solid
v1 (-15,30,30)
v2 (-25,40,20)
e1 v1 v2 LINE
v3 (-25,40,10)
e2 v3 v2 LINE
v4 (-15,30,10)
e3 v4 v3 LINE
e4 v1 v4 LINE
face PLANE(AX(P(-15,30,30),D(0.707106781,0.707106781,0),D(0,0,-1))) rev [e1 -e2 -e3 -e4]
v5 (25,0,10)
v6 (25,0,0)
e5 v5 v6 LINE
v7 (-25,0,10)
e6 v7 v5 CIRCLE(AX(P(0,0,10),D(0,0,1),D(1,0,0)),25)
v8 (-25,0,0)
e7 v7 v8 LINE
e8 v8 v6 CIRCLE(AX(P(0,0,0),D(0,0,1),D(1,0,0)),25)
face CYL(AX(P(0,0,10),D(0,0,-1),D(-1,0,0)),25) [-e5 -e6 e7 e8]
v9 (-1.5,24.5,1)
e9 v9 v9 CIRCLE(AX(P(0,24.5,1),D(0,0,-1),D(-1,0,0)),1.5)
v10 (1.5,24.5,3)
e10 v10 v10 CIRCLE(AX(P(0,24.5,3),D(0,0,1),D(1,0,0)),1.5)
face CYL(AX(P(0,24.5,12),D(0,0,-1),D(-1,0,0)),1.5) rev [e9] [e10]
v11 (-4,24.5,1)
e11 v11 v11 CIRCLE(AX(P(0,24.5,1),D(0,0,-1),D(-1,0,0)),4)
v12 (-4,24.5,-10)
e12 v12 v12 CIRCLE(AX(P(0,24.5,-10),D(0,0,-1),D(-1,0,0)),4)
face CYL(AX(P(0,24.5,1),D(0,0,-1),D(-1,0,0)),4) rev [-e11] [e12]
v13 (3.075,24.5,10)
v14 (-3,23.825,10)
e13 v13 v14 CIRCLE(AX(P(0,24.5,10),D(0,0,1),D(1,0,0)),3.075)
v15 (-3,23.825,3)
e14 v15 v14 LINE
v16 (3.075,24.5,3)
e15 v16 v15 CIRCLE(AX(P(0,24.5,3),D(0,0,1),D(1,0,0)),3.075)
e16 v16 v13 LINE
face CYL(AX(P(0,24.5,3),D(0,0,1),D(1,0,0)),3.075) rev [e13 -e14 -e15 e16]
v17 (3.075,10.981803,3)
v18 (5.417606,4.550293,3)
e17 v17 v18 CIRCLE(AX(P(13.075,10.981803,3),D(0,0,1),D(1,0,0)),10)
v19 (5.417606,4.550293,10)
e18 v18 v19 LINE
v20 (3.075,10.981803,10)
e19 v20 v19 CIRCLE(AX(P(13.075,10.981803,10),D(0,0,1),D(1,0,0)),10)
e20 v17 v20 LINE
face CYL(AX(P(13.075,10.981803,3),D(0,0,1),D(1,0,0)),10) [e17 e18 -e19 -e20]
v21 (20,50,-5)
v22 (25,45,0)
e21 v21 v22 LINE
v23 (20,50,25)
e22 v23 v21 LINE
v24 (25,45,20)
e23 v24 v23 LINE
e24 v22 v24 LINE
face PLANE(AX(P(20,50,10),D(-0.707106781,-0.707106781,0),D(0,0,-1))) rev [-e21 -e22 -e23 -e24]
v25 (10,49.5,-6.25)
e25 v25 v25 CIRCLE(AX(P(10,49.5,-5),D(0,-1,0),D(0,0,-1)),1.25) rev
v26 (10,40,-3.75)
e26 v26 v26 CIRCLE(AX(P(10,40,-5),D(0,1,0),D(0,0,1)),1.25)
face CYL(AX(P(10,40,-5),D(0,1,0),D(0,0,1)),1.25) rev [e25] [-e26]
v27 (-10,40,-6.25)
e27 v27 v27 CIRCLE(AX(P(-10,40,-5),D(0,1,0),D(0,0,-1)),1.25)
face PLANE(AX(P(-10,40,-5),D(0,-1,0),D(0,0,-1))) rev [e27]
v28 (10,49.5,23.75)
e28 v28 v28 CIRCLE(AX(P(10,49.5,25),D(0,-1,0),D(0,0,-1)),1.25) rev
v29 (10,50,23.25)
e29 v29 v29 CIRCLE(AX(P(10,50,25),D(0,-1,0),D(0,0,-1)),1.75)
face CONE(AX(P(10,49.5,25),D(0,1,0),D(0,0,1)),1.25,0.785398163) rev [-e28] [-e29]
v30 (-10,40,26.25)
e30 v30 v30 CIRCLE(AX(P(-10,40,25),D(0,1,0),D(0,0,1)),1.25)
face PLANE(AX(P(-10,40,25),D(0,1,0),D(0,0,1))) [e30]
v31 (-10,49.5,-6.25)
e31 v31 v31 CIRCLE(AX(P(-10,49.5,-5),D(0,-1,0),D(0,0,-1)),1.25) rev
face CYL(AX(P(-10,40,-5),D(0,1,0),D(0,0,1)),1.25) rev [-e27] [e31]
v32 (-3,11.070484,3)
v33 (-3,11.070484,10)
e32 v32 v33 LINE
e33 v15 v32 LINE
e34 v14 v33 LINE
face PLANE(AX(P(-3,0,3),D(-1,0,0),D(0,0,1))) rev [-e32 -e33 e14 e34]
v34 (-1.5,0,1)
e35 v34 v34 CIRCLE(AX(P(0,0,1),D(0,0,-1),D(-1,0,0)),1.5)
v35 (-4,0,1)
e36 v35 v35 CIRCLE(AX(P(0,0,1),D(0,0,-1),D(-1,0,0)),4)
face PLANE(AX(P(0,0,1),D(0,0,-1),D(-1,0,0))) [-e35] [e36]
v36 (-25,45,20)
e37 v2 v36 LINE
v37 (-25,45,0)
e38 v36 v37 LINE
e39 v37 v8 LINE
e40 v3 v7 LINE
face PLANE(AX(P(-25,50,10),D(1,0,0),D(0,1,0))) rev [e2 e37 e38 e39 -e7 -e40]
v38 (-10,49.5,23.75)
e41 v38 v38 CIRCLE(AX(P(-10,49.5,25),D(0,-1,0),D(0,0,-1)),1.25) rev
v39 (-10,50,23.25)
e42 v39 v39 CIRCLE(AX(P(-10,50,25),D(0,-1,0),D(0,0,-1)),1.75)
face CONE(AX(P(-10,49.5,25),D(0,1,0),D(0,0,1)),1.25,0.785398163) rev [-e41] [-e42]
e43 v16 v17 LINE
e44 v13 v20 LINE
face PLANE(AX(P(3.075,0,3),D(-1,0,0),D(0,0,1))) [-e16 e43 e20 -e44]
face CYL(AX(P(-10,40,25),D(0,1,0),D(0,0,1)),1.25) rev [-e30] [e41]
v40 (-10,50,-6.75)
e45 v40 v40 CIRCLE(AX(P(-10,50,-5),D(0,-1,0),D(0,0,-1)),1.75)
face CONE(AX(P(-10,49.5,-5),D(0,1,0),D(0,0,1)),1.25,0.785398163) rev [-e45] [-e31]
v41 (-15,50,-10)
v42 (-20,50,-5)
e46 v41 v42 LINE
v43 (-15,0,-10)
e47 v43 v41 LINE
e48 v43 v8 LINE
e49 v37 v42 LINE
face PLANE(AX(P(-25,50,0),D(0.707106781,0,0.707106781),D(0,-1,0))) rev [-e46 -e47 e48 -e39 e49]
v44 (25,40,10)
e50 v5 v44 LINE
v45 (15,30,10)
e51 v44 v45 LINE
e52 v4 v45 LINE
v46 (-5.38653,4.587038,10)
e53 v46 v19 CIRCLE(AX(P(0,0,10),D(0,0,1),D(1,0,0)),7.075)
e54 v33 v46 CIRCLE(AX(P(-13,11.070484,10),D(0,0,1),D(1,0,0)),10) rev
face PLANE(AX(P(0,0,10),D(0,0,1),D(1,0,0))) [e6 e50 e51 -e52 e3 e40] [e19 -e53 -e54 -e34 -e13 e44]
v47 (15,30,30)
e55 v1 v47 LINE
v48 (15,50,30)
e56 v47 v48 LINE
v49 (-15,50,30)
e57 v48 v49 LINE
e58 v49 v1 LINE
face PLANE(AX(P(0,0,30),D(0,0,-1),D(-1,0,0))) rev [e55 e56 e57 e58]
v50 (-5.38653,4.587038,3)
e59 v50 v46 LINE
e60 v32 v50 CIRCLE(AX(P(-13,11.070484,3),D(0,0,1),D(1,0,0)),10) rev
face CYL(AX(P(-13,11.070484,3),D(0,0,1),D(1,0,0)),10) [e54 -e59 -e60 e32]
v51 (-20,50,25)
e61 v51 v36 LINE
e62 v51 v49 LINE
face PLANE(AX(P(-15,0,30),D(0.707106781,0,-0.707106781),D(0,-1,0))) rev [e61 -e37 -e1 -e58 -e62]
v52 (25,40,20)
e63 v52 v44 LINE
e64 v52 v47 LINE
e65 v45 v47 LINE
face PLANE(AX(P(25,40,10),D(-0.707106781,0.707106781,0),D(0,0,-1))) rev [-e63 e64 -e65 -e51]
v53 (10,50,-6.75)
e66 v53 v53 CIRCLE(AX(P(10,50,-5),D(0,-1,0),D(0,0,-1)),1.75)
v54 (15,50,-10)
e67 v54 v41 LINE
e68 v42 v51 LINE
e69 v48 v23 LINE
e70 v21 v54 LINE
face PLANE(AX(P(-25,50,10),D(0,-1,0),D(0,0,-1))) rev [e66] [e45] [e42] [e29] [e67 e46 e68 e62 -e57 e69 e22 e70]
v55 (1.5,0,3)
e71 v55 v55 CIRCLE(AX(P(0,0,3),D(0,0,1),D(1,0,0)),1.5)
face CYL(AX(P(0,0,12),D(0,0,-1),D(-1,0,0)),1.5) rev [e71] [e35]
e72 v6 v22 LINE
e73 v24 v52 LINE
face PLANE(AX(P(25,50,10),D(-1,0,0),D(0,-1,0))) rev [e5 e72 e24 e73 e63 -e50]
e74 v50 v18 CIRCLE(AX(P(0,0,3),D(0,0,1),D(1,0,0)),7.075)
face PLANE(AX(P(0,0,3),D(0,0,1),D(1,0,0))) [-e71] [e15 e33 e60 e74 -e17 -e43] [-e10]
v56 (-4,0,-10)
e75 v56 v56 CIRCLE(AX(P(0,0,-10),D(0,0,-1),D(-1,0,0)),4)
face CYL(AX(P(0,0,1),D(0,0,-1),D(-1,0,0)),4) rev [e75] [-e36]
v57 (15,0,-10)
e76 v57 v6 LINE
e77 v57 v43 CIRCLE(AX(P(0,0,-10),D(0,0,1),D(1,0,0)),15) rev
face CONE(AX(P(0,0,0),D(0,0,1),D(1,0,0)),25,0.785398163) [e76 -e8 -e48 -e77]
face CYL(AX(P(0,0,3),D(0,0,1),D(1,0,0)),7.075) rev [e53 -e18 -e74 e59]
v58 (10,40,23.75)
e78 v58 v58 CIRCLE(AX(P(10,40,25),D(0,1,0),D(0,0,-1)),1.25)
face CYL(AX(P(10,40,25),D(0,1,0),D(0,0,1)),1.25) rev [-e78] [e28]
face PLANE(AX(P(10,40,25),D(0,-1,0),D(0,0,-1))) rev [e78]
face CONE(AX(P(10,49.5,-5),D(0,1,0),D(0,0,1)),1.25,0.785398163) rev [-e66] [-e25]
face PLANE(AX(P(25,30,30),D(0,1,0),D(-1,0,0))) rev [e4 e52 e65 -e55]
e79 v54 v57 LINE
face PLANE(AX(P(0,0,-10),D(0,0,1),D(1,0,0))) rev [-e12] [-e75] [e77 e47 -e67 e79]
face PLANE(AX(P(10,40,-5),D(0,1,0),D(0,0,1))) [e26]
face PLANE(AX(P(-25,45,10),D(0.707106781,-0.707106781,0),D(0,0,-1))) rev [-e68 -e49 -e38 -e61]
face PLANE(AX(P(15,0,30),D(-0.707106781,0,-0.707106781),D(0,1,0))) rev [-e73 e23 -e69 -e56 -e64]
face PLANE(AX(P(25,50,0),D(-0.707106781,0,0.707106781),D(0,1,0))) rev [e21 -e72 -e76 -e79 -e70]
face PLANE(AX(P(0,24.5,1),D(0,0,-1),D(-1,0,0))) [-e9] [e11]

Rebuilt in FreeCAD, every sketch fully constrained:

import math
import FreeCAD as App
import Part
import Sketcher

V = App.Vector


def edges_at(feature, points):
    """Names of the edges that pass closest to the given points."""
    edges = feature.Shape.Edges
    near = lambda p: min(range(len(edges)), key=lambda i: edges[i].distToShape(Part.Vertex(*p))[0])
    return sorted({f"Edge{near(p) + 1}" for p in points})

doc = App.newDocument("Part")
body = doc.addObject("PartDesign::Body", "Body")

# Sketch on XY plane
sketch1 = doc.addObject("Sketcher::SketchObject", "Sketch")
body.addObject(sketch1)
sketch1.AttachmentSupport = (doc.XY_Plane, [""])
sketch1.MapMode = "FlatFace"
sketch1.addGeometry(Part.LineSegment(V(25, 0, 0), V(25, 50, 0)), False)
sketch1.addGeometry(Part.LineSegment(V(25, 50, 0), V(-25, 50, 0)), False)
sketch1.addGeometry(Part.LineSegment(V(-25, 50, 0), V(-25, 0, 0)), False)
sketch1.addGeometry(Part.ArcOfCircle(Part.Circle(V(0, 0, 0), V(0, 0, 1), 25), math.radians(180), math.radians(360)), False)
sketch1.addConstraint(Sketcher.Constraint("Coincident", 0, 2, 1, 1))
sketch1.addConstraint(Sketcher.Constraint("Coincident", 1, 2, 2, 1))
sketch1.addConstraint(Sketcher.Constraint("Tangent", 2, 2, 3, 1))
sketch1.addConstraint(Sketcher.Constraint("Tangent", 3, 2, 0, 1))
sketch1.addConstraint(Sketcher.Constraint("Vertical", 0))
sketch1.addConstraint(Sketcher.Constraint("Horizontal", 1))
sketch1.addConstraint(Sketcher.Constraint("Vertical", 2))
sketch1.addConstraint(Sketcher.Constraint("Coincident", 3, 3, -1, 1))
sketch1.addConstraint(Sketcher.Constraint("Equal", 1, 0))
sketch1.addConstraint(Sketcher.Constraint("Radius", 3, 25.0))
pad1 = doc.addObject("PartDesign::Pad", "Pad")
body.addObject(pad1)
pad1.Profile = sketch1
pad1.Length = 20
pad1.Midplane = True
doc.recompute()

chamfer = doc.addObject("PartDesign::Chamfer", "Chamfer")
body.addObject(chamfer)
chamfer.Base = (pad1, edges_at(pad1, [(25, 25, -10), (0, -25, -10), (-25, 25, -10)]))
chamfer.Size = 10

# Sketch on XY plane
sketch2 = doc.addObject("Sketcher::SketchObject", "Sketch001")
body.addObject(sketch2)
sketch2.AttachmentSupport = (doc.XY_Plane, [""])
sketch2.MapMode = "FlatFace"
sketch2.AttachmentOffset = App.Placement(V(0, 0, 10), App.Rotation())
sketch2.addGeometry(Part.LineSegment(V(3.1, 11, 0), V(3.1, 24.5, 0)), False)
sketch2.addGeometry(Part.ArcOfCircle(Part.Circle(V(0, 24.5, 0), V(0, 0, 1), 3.1), math.radians(0), math.radians(193)), False)
sketch2.addGeometry(Part.LineSegment(V(-3, 23.8, 0), V(-3, 11.1, 0)), False)
sketch2.addGeometry(Part.ArcOfCircle(Part.Circle(V(-13, 11.1, 0), V(0, 0, 1), 10), math.radians(-40), math.radians(0)), False)
sketch2.addGeometry(Part.ArcOfCircle(Part.Circle(V(0, 0, 0), V(0, 0, 1), 7.1), math.radians(140), math.radians(400)), False)
sketch2.addGeometry(Part.ArcOfCircle(Part.Circle(V(13.1, 11, 0), V(0, 0, 1), 10), math.radians(180), math.radians(220)), False)
sketch2.addConstraint(Sketcher.Constraint("Tangent", 0, 2, 1, 1))
sketch2.addConstraint(Sketcher.Constraint("Coincident", 1, 2, 2, 1))
sketch2.addConstraint(Sketcher.Constraint("Tangent", 2, 2, 3, 2))
sketch2.addConstraint(Sketcher.Constraint("Tangent", 3, 1, 4, 1))
sketch2.addConstraint(Sketcher.Constraint("Tangent", 4, 2, 5, 2))
sketch2.addConstraint(Sketcher.Constraint("Tangent", 5, 1, 0, 1))
sketch2.addConstraint(Sketcher.Constraint("Vertical", 0))
sketch2.addConstraint(Sketcher.Constraint("Vertical", 2))
sketch2.addConstraint(Sketcher.Constraint("Coincident", 4, 3, -1, 1))
sketch2.addConstraint(Sketcher.Constraint("Equal", 3, 5))
sketch2.addConstraint(Sketcher.Constraint("PointOnObject", 1, 3, -2))
sketch2.addConstraint(Sketcher.Constraint("Radius", 3, 10.0))
sketch2.addConstraint(Sketcher.Constraint("DistanceX", 3, 3, -1, 1, 13.0))
sketch2.addConstraint(Sketcher.Constraint("Radius", 1, 3.075))
sketch2.addConstraint(Sketcher.Constraint("Radius", 4, 7.075))
sketch2.addConstraint(Sketcher.Constraint("DistanceY", -1, 1, 1, 3, 24.5))
pocket1 = doc.addObject("PartDesign::Pocket", "Pocket")
body.addObject(pocket1)
pocket1.Profile = sketch2
pocket1.Length = 7

# Sketch on XY plane
sketch3 = doc.addObject("Sketcher::SketchObject", "Sketch002")
body.addObject(sketch3)
sketch3.AttachmentSupport = (doc.XY_Plane, [""])
sketch3.MapMode = "FlatFace"
sketch3.AttachmentOffset = App.Placement(V(0, 0, -10), App.Rotation())
sketch3.addGeometry(Part.Circle(V(0, 0, 0), V(0, 0, 1), 4), False)
sketch3.addGeometry(Part.Circle(V(0, 24.5, 0), V(0, 0, 1), 4), False)
sketch3.addConstraint(Sketcher.Constraint("Coincident", 0, 3, -1, 1))
sketch3.addConstraint(Sketcher.Constraint("Equal", 0, 1))
sketch3.addConstraint(Sketcher.Constraint("PointOnObject", 1, 3, -2))
sketch3.addConstraint(Sketcher.Constraint("Diameter", 0, 8.0))
sketch3.addConstraint(Sketcher.Constraint("DistanceY", -1, 1, 1, 3, 24.5))
pocket2 = doc.addObject("PartDesign::Pocket", "Pocket001")
body.addObject(pocket2)
pocket2.Profile = sketch3
pocket2.Length = 11
pocket2.Reversed = True

# Sketch on XY plane
sketch4 = doc.addObject("Sketcher::SketchObject", "Sketch003")
body.addObject(sketch4)
sketch4.AttachmentSupport = (doc.XY_Plane, [""])
sketch4.MapMode = "FlatFace"
sketch4.AttachmentOffset = App.Placement(V(0, 0, 1), App.Rotation())
sketch4.addGeometry(Part.Circle(V(0, 24.5, 0), V(0, 0, 1), 1.5), False)
sketch4.addGeometry(Part.Circle(V(0, 0, 0), V(0, 0, 1), 1.5), False)
sketch4.addConstraint(Sketcher.Constraint("Coincident", 1, 3, -1, 1))
sketch4.addConstraint(Sketcher.Constraint("Equal", 0, 1))
sketch4.addConstraint(Sketcher.Constraint("PointOnObject", 0, 3, -2))
sketch4.addConstraint(Sketcher.Constraint("Diameter", 0, 3.0))
sketch4.addConstraint(Sketcher.Constraint("DistanceY", -1, 1, 0, 3, 24.5))
pocket3 = doc.addObject("PartDesign::Pocket", "Pocket002")
body.addObject(pocket3)
pocket3.Profile = sketch4
pocket3.Length = 11
pocket3.Reversed = True

# Sketch on XY plane
sketch5 = doc.addObject("Sketcher::SketchObject", "Sketch004")
body.addObject(sketch5)
sketch5.AttachmentSupport = (doc.XY_Plane, [""])
sketch5.MapMode = "FlatFace"
sketch5.AttachmentOffset = App.Placement(V(0, 0, 10), App.Rotation())
sketch5.addGeometry(Part.LineSegment(V(-25, 50, 0), V(-25, 30, 0)), False)
sketch5.addGeometry(Part.LineSegment(V(-25, 30, 0), V(25, 30, 0)), False)
sketch5.addGeometry(Part.LineSegment(V(25, 30, 0), V(25, 50, 0)), False)
sketch5.addGeometry(Part.LineSegment(V(25, 50, 0), V(-25, 50, 0)), False)
sketch5.addConstraint(Sketcher.Constraint("Coincident", 0, 2, 1, 1))
sketch5.addConstraint(Sketcher.Constraint("Coincident", 1, 2, 2, 1))
sketch5.addConstraint(Sketcher.Constraint("Coincident", 2, 2, 3, 1))
sketch5.addConstraint(Sketcher.Constraint("Coincident", 3, 2, 0, 1))
sketch5.addConstraint(Sketcher.Constraint("Vertical", 0))
sketch5.addConstraint(Sketcher.Constraint("Horizontal", 1))
sketch5.addConstraint(Sketcher.Constraint("Vertical", 2))
sketch5.addConstraint(Sketcher.Constraint("Horizontal", 3))
sketch5.addConstraint(Sketcher.Constraint("DistanceX", 1, 1, 1, 2, 50.0))
sketch5.addConstraint(Sketcher.Constraint("DistanceY", 0, 2, 0, 1, 20.0))
sketch5.addConstraint(Sketcher.Constraint("DistanceX", 0, 2, -1, 1, 25.0))
sketch5.addConstraint(Sketcher.Constraint("DistanceY", -1, 1, 0, 2, 30.0))
pad2 = doc.addObject("PartDesign::Pad", "Pad001")
body.addObject(pad2)
pad2.Profile = sketch5
pad2.Length = 20
doc.recompute()

chamfer2 = doc.addObject("PartDesign::Chamfer", "Chamfer001")
body.addObject(chamfer2)
chamfer2.Base = (pad2, edges_at(pad2, [
    (25, 30, 20),
    (-25, 30, 20),
    (25, 40, 30),
    (-25, 40, 30),
]))
chamfer2.Size = 10
doc.recompute()

chamfer3 = doc.addObject("PartDesign::Chamfer", "Chamfer002")
body.addObject(chamfer3)
chamfer3.Base = (chamfer2, edges_at(chamfer2, [(-25, 50, 10), (25, 50, 10)]))
chamfer3.Size = 5

# Sketch on XZ plane
sketch6 = doc.addObject("Sketcher::SketchObject", "Sketch005")
body.addObject(sketch6)
sketch6.AttachmentSupport = (doc.XZ_Plane, [""])
sketch6.MapMode = "FlatFace"
sketch6.AttachmentOffset = App.Placement(V(0, 0, -50), App.Rotation())
sketch6.addGeometry(Part.Circle(V(10, -5, 0), V(0, 0, 1), 1.2), False)
sketch6.addGeometry(Part.Circle(V(10, 25, 0), V(0, 0, 1), 1.2), False)
sketch6.addGeometry(Part.Circle(V(-10, 25, 0), V(0, 0, 1), 1.2), False)
sketch6.addGeometry(Part.Circle(V(-10, -5, 0), V(0, 0, 1), 1.2), False)
sketch6.addConstraint(Sketcher.Constraint("Equal", 0, 1))
sketch6.addConstraint(Sketcher.Constraint("Equal", 1, 2))
sketch6.addConstraint(Sketcher.Constraint("Equal", 2, 3))
sketch6.addConstraint(Sketcher.Constraint("Symmetric", 1, 3, 2, 3, -2))
sketch6.addConstraint(Sketcher.Constraint("Symmetric", 0, 3, 3, 3, -2))
sketch6.addConstraint(Sketcher.Constraint("Vertical", 0, 3, 1, 3))
sketch6.addConstraint(Sketcher.Constraint("Diameter", 0, 2.5))
sketch6.addConstraint(Sketcher.Constraint("DistanceX", -1, 1, 0, 3, 10.0))
sketch6.addConstraint(Sketcher.Constraint("DistanceY", 0, 3, -1, 1, 5.0))
sketch6.addConstraint(Sketcher.Constraint("DistanceY", -1, 1, 1, 3, 25.0))
pocket4 = doc.addObject("PartDesign::Pocket", "Pocket003")
body.addObject(pocket4)
pocket4.Profile = sketch6
pocket4.Length = 10
pocket4.Reversed = True
doc.recompute()

chamfer4 = doc.addObject("PartDesign::Chamfer", "Chamfer003")
body.addObject(chamfer4)
chamfer4.Base = (pocket4, edges_at(pocket4, [
    (-10, 50, -3.75),
    (-10, 50, 23.75),
    (10, 50, 26.25),
    (10, 50, -6.25),
]))
chamfer4.Size = 0.5

doc.recompute()
